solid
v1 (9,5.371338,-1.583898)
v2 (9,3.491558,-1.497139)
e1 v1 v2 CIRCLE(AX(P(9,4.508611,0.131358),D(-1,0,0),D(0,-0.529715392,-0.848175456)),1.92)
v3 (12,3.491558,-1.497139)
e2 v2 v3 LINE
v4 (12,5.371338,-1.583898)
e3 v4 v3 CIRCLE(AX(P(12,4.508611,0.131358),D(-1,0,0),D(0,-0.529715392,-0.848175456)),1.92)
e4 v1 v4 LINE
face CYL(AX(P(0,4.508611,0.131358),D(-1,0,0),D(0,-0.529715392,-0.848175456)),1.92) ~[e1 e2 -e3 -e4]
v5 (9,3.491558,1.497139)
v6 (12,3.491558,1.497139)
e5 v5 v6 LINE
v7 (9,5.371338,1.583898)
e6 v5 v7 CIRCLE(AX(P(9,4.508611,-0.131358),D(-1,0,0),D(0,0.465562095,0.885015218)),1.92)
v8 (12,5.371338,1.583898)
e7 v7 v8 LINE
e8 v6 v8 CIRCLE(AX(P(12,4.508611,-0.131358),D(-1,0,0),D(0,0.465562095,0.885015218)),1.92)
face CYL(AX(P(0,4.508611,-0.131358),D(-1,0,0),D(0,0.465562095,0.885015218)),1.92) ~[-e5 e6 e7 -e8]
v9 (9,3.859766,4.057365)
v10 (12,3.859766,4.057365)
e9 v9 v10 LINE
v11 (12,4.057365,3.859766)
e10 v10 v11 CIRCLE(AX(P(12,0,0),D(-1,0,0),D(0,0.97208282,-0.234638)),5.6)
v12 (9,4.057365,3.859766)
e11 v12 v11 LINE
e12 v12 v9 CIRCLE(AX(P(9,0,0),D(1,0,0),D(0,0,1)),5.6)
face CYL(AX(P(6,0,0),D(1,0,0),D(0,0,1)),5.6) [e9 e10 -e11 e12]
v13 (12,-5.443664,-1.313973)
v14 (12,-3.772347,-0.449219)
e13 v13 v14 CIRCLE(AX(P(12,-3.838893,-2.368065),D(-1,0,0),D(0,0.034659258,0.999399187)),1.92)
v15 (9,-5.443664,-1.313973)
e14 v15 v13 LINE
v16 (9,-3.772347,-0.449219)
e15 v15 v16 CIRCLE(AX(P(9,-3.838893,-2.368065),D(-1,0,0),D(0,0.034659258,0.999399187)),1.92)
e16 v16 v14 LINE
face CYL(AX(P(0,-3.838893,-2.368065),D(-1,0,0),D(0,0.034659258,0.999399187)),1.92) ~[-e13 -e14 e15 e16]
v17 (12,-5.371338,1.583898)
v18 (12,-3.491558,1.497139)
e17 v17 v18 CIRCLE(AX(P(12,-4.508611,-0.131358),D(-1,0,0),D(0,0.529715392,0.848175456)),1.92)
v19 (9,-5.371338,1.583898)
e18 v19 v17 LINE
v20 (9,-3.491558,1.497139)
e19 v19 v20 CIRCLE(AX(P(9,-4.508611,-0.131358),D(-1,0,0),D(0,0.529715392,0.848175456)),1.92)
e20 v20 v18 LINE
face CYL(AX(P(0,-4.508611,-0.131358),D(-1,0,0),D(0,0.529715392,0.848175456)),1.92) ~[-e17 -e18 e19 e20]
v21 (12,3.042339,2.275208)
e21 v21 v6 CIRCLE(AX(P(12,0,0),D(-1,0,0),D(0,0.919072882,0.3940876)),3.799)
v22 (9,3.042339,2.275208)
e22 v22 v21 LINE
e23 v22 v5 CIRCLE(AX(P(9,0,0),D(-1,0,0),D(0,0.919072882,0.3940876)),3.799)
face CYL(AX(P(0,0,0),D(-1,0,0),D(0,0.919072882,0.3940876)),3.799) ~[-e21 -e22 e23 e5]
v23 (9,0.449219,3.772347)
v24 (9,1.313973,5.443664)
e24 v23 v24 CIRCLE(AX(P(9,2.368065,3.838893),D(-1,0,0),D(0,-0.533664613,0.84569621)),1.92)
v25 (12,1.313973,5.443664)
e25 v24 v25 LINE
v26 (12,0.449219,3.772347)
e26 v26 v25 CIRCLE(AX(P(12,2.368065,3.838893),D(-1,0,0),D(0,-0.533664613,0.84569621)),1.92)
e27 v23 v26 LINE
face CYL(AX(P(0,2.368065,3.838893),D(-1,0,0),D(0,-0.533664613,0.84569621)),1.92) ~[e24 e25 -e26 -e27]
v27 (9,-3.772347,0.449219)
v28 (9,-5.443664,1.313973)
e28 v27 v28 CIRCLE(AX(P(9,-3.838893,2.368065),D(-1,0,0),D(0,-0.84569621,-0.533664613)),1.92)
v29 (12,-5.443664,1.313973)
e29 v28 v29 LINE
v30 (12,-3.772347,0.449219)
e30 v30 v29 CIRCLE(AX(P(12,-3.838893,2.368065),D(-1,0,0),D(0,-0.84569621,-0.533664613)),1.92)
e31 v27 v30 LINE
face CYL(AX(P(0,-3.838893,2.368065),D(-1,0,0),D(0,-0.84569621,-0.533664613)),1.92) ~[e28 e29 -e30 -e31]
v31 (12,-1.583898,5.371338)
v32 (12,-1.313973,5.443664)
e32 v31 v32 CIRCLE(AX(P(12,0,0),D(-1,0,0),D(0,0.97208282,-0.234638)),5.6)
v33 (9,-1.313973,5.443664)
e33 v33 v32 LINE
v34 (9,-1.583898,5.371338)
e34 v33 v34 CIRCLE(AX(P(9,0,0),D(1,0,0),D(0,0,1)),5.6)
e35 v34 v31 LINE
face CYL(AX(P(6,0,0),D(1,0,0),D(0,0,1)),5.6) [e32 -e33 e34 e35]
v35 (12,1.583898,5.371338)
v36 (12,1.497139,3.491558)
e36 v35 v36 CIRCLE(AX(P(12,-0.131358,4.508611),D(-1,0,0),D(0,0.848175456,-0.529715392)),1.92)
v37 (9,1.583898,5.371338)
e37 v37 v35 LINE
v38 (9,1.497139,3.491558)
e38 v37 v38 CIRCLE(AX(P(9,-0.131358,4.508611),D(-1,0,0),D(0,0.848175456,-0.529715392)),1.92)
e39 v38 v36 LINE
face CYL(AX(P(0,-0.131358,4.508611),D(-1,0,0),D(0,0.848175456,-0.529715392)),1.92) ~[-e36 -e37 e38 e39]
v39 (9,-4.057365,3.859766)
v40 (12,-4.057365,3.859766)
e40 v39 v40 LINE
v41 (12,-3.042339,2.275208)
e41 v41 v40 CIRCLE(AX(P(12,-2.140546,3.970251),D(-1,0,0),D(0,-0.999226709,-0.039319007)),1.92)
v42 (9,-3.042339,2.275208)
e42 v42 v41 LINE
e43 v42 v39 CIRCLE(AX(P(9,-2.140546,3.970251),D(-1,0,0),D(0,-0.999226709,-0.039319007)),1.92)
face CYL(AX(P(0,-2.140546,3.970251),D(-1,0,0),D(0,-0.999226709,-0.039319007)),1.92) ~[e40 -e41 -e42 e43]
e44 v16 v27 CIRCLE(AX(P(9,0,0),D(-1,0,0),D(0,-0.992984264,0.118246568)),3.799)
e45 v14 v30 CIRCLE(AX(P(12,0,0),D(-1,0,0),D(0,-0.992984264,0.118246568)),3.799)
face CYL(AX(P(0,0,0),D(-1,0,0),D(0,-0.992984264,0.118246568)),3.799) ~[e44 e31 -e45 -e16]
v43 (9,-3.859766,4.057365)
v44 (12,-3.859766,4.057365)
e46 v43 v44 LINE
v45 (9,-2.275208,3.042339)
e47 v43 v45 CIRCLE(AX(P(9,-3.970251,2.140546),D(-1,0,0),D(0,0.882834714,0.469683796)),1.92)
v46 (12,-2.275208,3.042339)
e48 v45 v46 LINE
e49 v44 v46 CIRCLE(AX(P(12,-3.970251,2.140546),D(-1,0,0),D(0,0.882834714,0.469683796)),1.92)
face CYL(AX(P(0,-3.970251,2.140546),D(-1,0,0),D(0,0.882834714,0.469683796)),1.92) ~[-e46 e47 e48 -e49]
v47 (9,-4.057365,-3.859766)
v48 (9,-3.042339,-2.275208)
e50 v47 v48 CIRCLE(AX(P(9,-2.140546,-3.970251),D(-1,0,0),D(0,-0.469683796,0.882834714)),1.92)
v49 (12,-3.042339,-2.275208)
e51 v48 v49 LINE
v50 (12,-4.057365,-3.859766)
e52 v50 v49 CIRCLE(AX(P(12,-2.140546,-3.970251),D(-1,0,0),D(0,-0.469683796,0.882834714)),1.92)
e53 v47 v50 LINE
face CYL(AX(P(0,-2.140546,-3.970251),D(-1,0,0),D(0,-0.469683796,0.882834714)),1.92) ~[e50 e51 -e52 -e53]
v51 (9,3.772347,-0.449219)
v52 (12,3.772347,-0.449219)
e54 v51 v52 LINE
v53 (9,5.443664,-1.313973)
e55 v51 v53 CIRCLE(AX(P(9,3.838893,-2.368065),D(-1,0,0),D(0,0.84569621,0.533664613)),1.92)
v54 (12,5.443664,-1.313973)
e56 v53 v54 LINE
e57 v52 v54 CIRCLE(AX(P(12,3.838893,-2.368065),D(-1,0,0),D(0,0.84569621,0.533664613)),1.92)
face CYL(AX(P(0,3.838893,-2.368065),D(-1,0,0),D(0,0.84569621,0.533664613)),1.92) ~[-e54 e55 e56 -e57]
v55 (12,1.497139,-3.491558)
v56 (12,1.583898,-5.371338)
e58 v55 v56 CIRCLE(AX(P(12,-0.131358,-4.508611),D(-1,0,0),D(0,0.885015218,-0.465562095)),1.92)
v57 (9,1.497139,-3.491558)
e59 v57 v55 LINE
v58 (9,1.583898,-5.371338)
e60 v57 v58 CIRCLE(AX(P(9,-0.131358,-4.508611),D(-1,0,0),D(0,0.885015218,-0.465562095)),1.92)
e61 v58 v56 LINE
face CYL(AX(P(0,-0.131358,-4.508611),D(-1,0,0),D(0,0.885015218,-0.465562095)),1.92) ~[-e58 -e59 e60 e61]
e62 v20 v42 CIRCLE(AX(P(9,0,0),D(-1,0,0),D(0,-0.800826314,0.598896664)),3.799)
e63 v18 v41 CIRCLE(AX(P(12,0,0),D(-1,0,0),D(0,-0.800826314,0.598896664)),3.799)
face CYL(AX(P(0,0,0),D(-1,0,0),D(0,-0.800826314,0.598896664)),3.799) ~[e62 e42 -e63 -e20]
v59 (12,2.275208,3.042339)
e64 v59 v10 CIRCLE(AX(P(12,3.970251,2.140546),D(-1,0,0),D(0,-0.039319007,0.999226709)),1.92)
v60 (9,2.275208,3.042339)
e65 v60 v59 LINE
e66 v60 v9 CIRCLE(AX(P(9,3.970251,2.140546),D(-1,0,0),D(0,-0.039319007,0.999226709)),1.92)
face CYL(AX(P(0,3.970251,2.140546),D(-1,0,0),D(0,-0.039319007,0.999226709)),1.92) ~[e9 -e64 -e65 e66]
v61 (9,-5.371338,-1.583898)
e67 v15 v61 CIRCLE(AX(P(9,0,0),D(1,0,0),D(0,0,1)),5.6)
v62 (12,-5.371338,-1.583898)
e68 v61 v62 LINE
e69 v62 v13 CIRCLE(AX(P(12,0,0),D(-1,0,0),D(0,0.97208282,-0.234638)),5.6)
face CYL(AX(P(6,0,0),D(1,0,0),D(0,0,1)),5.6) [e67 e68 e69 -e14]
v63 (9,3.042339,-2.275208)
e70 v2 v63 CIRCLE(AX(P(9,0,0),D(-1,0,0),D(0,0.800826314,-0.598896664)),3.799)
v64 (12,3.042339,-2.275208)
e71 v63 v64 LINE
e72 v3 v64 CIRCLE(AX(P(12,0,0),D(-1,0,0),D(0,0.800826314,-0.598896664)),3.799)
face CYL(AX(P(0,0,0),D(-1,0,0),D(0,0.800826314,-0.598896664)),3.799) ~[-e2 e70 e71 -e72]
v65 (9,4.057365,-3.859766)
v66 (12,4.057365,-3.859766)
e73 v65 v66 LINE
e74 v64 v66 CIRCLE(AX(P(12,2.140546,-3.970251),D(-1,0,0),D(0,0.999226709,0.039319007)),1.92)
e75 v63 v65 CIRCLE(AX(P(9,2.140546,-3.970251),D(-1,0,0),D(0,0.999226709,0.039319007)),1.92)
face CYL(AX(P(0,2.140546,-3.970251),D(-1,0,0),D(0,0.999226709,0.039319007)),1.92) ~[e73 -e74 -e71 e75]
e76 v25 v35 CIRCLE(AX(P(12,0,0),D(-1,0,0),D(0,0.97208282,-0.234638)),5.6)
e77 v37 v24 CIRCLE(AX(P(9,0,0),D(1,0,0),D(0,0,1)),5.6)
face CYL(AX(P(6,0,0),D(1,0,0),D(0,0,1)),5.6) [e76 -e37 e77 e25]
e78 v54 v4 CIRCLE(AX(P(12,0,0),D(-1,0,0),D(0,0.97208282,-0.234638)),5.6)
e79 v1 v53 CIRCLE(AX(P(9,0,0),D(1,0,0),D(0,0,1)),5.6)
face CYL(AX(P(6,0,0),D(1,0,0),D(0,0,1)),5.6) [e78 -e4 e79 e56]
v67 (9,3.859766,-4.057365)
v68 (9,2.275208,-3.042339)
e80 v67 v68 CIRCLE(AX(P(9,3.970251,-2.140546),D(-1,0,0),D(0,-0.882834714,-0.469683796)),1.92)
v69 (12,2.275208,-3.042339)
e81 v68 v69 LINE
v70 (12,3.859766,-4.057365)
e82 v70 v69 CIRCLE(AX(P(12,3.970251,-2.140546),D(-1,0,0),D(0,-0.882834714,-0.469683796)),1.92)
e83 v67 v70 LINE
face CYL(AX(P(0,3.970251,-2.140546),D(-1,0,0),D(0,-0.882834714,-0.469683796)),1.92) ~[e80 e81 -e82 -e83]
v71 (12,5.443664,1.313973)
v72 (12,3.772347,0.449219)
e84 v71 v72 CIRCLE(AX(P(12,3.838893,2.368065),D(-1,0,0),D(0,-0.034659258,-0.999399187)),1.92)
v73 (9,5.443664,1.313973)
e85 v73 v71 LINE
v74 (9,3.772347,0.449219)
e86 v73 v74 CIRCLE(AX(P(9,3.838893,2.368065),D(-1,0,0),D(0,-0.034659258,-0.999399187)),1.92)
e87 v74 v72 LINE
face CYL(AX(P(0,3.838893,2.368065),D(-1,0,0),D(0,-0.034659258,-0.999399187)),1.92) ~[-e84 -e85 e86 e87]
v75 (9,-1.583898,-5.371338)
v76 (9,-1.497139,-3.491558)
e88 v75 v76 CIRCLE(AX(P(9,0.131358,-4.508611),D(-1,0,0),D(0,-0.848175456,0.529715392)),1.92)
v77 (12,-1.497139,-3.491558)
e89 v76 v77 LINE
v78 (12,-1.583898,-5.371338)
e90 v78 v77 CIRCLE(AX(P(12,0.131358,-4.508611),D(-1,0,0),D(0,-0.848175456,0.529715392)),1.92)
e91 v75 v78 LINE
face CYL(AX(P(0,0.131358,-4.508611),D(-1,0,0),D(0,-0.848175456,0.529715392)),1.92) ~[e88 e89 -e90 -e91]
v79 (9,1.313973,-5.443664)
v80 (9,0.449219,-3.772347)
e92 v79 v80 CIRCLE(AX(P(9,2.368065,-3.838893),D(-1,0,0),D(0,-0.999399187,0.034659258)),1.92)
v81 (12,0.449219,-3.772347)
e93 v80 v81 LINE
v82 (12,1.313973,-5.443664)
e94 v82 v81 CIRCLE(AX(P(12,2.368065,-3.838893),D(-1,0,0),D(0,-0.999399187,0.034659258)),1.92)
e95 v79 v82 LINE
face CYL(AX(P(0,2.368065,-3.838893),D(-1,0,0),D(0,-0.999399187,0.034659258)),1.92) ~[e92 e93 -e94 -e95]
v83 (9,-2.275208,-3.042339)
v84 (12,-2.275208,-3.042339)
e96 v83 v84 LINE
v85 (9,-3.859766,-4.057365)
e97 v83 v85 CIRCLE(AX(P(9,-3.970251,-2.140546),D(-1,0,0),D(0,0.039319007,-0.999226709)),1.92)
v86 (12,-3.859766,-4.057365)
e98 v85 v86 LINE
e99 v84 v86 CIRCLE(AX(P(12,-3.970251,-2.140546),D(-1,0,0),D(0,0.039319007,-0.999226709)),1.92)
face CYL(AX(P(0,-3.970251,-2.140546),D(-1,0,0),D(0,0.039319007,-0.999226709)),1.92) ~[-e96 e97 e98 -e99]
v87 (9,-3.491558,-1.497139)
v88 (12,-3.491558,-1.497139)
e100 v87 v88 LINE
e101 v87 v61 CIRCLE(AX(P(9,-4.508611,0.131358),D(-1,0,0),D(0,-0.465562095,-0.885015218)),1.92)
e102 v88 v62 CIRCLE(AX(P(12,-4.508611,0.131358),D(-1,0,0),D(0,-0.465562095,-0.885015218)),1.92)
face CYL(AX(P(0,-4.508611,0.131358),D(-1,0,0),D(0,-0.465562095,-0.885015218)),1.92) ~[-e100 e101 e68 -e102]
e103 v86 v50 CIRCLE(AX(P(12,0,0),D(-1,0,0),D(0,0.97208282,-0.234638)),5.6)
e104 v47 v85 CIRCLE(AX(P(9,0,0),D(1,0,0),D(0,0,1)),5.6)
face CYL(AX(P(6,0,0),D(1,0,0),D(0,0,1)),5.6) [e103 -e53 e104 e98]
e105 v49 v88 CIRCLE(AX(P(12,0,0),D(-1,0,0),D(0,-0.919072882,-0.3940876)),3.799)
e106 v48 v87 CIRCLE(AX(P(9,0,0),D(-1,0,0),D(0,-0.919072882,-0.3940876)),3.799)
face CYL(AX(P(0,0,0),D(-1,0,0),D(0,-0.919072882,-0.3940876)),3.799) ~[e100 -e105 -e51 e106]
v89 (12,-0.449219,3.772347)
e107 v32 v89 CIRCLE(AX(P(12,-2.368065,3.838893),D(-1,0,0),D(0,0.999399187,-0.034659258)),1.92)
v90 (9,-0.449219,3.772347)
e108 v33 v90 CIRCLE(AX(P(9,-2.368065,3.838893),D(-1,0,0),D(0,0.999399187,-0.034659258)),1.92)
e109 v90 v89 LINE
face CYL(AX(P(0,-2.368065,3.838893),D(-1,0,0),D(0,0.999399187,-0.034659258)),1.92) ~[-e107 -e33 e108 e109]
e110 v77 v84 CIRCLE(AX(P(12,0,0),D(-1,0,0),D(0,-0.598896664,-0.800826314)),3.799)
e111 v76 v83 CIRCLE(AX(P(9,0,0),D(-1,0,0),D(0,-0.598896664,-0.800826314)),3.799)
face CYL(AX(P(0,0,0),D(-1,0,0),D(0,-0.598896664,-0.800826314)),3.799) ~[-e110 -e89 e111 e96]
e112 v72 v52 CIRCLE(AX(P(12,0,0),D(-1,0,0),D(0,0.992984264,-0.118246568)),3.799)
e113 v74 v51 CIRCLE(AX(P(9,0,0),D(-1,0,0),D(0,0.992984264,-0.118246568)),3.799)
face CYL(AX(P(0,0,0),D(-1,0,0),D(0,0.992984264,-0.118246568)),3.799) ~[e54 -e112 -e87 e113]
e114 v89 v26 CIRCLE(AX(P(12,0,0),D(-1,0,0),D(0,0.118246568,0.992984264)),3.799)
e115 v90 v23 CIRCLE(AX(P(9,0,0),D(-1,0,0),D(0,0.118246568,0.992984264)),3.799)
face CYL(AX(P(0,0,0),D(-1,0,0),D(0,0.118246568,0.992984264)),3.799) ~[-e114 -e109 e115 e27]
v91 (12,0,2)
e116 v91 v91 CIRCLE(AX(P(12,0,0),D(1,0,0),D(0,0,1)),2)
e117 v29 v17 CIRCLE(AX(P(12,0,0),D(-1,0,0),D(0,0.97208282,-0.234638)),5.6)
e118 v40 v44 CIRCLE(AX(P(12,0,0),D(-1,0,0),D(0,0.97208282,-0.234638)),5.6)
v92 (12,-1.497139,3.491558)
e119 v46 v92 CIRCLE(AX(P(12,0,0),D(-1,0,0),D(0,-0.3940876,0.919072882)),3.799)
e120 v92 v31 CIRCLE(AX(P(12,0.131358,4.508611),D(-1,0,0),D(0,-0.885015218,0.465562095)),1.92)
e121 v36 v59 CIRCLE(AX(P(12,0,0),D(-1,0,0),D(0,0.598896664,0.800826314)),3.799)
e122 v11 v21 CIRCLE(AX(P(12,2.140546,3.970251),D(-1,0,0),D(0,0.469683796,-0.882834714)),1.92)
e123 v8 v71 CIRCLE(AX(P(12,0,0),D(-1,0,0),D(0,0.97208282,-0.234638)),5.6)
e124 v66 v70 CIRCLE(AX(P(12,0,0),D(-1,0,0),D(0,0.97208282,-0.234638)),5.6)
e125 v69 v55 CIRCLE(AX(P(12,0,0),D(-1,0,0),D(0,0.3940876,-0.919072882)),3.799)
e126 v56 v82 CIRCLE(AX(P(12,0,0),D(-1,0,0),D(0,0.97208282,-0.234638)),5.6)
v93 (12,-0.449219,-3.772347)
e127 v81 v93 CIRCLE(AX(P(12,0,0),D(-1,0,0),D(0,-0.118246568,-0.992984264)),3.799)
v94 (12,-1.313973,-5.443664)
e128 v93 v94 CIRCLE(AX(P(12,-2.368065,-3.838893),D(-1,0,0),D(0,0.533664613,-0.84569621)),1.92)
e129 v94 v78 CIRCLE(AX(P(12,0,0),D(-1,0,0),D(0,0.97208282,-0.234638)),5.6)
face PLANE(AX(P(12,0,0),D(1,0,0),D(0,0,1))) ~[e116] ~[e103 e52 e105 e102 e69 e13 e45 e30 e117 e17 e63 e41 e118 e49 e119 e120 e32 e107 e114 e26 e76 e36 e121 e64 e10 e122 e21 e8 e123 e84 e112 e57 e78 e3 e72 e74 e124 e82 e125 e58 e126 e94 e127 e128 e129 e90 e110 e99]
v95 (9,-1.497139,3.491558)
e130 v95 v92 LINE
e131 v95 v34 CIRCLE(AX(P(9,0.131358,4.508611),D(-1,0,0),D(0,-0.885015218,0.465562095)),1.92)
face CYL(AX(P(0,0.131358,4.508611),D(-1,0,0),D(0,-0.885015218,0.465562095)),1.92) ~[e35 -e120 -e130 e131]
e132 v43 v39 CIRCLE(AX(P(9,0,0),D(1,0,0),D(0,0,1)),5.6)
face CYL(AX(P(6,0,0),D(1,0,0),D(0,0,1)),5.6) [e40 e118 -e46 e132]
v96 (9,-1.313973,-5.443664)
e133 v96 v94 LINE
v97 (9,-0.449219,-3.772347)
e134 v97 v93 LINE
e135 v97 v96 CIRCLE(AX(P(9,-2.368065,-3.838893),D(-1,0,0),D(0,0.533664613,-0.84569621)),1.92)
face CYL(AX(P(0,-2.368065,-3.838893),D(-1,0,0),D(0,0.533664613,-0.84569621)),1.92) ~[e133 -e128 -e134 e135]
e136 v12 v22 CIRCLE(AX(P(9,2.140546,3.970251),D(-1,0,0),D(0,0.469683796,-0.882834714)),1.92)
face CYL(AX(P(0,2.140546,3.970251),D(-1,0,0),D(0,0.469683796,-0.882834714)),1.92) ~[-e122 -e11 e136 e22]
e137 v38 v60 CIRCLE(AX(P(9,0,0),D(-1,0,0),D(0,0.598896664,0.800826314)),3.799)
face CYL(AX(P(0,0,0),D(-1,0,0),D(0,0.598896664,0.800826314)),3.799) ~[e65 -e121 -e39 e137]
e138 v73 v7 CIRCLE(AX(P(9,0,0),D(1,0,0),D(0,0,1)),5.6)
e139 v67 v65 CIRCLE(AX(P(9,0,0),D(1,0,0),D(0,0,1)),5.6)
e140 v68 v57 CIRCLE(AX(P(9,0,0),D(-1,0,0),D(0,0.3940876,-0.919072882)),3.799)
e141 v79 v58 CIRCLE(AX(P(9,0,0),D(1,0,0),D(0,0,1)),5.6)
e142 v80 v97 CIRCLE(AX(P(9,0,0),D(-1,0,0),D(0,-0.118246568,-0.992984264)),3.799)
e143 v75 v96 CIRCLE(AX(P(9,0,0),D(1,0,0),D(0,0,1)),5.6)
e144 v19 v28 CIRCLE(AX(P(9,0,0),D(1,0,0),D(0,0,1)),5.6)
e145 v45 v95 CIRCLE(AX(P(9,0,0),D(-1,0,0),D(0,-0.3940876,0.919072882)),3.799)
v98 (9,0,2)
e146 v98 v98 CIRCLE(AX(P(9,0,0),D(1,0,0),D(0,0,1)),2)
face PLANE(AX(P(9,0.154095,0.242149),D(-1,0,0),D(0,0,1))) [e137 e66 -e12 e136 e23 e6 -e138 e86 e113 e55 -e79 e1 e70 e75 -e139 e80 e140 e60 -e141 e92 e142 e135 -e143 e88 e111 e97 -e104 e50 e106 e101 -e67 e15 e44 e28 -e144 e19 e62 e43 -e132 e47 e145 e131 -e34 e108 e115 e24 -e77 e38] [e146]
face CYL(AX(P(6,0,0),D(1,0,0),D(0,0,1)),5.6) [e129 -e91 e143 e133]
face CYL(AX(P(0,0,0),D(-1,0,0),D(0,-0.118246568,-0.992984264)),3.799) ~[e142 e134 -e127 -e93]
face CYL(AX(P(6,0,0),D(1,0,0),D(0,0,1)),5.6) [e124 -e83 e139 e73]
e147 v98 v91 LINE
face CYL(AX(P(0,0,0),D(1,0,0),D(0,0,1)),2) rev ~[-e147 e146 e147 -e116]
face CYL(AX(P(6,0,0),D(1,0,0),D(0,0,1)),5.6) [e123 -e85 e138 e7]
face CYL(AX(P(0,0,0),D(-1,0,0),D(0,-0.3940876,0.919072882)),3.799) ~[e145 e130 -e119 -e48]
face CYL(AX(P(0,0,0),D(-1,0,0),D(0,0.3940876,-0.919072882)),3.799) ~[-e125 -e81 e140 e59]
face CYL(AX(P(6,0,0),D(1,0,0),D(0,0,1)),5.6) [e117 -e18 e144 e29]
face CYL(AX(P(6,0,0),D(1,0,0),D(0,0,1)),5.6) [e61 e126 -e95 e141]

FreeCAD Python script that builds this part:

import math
import FreeCAD as App
import Part
import Sketcher

V = App.Vector

doc = App.newDocument("Part")
body = doc.addObject("PartDesign::Body", "Body")

sketch1 = body.newObject("Sketcher::SketchObject", "Sketch")
sketch1.AttachmentSupport = (doc.getObject("XZ_Plane"), [""])
sketch1.MapMode = "FlatFace"
sketch1.addGeometry([
    Part.LineSegment(V(0, -6, 0), V(0, 0, 0)),
    Part.LineSegment(V(0, 0, 0), V(12, 0, 0)),
    Part.LineSegment(V(12, 0, 0), V(12, -6, 0)),
    Part.LineSegment(V(12, -6, 0), V(0, -6, 0)),
], False)
sketch1.addConstraint([
    Sketcher.Constraint("Coincident", 0, 2, 1, 1),
    Sketcher.Constraint("Coincident", 1, 2, 2, 1),
    Sketcher.Constraint("Coincident", 2, 2, 3, 1),
    Sketcher.Constraint("Coincident", 3, 2, 0, 1),
    Sketcher.Constraint("Vertical", 0),
    Sketcher.Constraint("Horizontal", 1),
    Sketcher.Constraint("Vertical", 2),
    Sketcher.Constraint("Horizontal", 3),
    Sketcher.Constraint("Coincident", 0, 2, -1, 1),
    Sketcher.Constraint("DistanceX", 1, 1, 1, 2, 12.0),
    Sketcher.Constraint("DistanceY", 0, 1, 0, 2, 5.6),
])
revolution = body.newObject("PartDesign::Revolution", "Revolution")
revolution.Profile = sketch1
revolution.ReferenceAxis = (sketch1, ["H_Axis"])
revolution.Angle = 360

sketch2 = body.newObject("Sketcher::SketchObject", "Sketch001")
sketch2.AttachmentSupport = (doc.getObject("YZ_Plane"), [""])
sketch2.MapMode = "FlatFace"
sketch2.addGeometry([
    Part.ArcOfCircle(Part.Circle(V(0, 0, 0), V(0, 0, 1), 3.8), math.radians(-6.79), math.radians(6.79)),
    Part.ArcOfCircle(Part.Circle(V(3.8, -2.4, 0), V(0, 0, 1), 1.9), math.radians(32), math.radians(92)),
    Part.ArcOfCircle(Part.Circle(V(0, 0, 0), V(0, 0, 1), 5.6), math.radians(-14), math.radians(14)),
    Part.ArcOfCircle(Part.Circle(V(3.8, 2.4, 0), V(0, 0, 1), 1.9), math.radians(-92), math.radians(-32)),
], False)
sketch2.addConstraint([
    Sketcher.Constraint("Coincident", 0, 1, 1, 2),
    Sketcher.Constraint("Coincident", 1, 1, 2, 1),
    Sketcher.Constraint("Coincident", 2, 2, 3, 2),
    Sketcher.Constraint("Coincident", 3, 1, 0, 2),
    Sketcher.Constraint("Coincident", 0, 3, -1, 1),
    Sketcher.Constraint("Coincident", 2, 3, -1, 1),
    Sketcher.Constraint("Equal", 1, 3),
    Sketcher.Constraint("Symmetric", 1, 3, 3, 3, -1),
    Sketcher.Constraint("Radius", 1, 1.92),
    Sketcher.Constraint("Radius", 0, 3.799),
    Sketcher.Constraint("Radius", 2, 5.6254),
    Sketcher.Constraint("DistanceY", 0, 1, -1, 1, 0.449219),
    Sketcher.Constraint("DistanceX", -1, 1, 1, 1, 5.46263),
])
pocket1 = body.newObject("PartDesign::Pocket", "Pocket")
pocket1.Profile = sketch2
pocket1.Type = "ThroughAll"
pocket1.Reversed = True
doc.recompute()

polarpattern = body.newObject("PartDesign::PolarPattern", "PolarPattern")
polarpattern.Originals = [pocket1]
polarpattern.Axis = (doc.getObject("X_Axis"), [""])
polarpattern.Angle = 360
polarpattern.Occurrences = 12
body.Tip = polarpattern

sketch3 = body.newObject("Sketcher::SketchObject", "Sketch002")
sketch3.AttachmentSupport = (doc.getObject("YZ_Plane"), [""])
sketch3.MapMode = "FlatFace"
sketch3.addGeometry(Part.Circle(V(0, 0, 0), V(0, 0, 1), 2), False)
sketch3.addConstraint([
    Sketcher.Constraint("Coincident", 0, 3, -1, 1),
    Sketcher.Constraint("Diameter", 0, 4.0),
])
pocket2 = body.newObject("PartDesign::Pocket", "Pocket001")
pocket2.Profile = sketch3
pocket2.Length = 100.000102
pocket2.Midplane = True

sketch4 = body.newObject("Sketcher::SketchObject", "Sketch003")
sketch4.AttachmentSupport = (doc.getObject("YZ_Plane"), [""])
sketch4.MapMode = "FlatFace"
sketch4.addGeometry([
    Part.LineSegment(V(6, -6, 0), V(-6, -6, 0)),
    Part.LineSegment(V(-6, -6, 0), V(-6, 6, 0)),
    Part.LineSegment(V(-6, 6, 0), V(6, 6, 0)),
    Part.LineSegment(V(6, 6, 0), V(6, -6, 0)),
], False)
sketch4.addConstraint([
    Sketcher.Constraint("Coincident", 0, 2, 1, 1),
    Sketcher.Constraint("Coincident", 1, 2, 2, 1),
    Sketcher.Constraint("Coincident", 2, 2, 3, 1),
    Sketcher.Constraint("Coincident", 3, 2, 0, 1),
    Sketcher.Constraint("Horizontal", 0),
    Sketcher.Constraint("Vertical", 1),
    Sketcher.Constraint("Horizontal", 2),
    Sketcher.Constraint("Vertical", 3),
    Sketcher.Constraint("DistanceX", 0, 2, 0, 1, 11.755241),
    Sketcher.Constraint("DistanceY", 1, 1, 1, 2, 12.415647),
    Sketcher.Constraint("DistanceX", 0, 2, -1, 1, 5.723525),
    Sketcher.Constraint("DistanceY", 0, 2, -1, 1, 5.965674),
])
pocket3 = body.newObject("PartDesign::Pocket", "Pocket002")
pocket3.Profile = sketch4
pocket3.Length = 9
pocket3.Reversed = True

doc.recompute()
